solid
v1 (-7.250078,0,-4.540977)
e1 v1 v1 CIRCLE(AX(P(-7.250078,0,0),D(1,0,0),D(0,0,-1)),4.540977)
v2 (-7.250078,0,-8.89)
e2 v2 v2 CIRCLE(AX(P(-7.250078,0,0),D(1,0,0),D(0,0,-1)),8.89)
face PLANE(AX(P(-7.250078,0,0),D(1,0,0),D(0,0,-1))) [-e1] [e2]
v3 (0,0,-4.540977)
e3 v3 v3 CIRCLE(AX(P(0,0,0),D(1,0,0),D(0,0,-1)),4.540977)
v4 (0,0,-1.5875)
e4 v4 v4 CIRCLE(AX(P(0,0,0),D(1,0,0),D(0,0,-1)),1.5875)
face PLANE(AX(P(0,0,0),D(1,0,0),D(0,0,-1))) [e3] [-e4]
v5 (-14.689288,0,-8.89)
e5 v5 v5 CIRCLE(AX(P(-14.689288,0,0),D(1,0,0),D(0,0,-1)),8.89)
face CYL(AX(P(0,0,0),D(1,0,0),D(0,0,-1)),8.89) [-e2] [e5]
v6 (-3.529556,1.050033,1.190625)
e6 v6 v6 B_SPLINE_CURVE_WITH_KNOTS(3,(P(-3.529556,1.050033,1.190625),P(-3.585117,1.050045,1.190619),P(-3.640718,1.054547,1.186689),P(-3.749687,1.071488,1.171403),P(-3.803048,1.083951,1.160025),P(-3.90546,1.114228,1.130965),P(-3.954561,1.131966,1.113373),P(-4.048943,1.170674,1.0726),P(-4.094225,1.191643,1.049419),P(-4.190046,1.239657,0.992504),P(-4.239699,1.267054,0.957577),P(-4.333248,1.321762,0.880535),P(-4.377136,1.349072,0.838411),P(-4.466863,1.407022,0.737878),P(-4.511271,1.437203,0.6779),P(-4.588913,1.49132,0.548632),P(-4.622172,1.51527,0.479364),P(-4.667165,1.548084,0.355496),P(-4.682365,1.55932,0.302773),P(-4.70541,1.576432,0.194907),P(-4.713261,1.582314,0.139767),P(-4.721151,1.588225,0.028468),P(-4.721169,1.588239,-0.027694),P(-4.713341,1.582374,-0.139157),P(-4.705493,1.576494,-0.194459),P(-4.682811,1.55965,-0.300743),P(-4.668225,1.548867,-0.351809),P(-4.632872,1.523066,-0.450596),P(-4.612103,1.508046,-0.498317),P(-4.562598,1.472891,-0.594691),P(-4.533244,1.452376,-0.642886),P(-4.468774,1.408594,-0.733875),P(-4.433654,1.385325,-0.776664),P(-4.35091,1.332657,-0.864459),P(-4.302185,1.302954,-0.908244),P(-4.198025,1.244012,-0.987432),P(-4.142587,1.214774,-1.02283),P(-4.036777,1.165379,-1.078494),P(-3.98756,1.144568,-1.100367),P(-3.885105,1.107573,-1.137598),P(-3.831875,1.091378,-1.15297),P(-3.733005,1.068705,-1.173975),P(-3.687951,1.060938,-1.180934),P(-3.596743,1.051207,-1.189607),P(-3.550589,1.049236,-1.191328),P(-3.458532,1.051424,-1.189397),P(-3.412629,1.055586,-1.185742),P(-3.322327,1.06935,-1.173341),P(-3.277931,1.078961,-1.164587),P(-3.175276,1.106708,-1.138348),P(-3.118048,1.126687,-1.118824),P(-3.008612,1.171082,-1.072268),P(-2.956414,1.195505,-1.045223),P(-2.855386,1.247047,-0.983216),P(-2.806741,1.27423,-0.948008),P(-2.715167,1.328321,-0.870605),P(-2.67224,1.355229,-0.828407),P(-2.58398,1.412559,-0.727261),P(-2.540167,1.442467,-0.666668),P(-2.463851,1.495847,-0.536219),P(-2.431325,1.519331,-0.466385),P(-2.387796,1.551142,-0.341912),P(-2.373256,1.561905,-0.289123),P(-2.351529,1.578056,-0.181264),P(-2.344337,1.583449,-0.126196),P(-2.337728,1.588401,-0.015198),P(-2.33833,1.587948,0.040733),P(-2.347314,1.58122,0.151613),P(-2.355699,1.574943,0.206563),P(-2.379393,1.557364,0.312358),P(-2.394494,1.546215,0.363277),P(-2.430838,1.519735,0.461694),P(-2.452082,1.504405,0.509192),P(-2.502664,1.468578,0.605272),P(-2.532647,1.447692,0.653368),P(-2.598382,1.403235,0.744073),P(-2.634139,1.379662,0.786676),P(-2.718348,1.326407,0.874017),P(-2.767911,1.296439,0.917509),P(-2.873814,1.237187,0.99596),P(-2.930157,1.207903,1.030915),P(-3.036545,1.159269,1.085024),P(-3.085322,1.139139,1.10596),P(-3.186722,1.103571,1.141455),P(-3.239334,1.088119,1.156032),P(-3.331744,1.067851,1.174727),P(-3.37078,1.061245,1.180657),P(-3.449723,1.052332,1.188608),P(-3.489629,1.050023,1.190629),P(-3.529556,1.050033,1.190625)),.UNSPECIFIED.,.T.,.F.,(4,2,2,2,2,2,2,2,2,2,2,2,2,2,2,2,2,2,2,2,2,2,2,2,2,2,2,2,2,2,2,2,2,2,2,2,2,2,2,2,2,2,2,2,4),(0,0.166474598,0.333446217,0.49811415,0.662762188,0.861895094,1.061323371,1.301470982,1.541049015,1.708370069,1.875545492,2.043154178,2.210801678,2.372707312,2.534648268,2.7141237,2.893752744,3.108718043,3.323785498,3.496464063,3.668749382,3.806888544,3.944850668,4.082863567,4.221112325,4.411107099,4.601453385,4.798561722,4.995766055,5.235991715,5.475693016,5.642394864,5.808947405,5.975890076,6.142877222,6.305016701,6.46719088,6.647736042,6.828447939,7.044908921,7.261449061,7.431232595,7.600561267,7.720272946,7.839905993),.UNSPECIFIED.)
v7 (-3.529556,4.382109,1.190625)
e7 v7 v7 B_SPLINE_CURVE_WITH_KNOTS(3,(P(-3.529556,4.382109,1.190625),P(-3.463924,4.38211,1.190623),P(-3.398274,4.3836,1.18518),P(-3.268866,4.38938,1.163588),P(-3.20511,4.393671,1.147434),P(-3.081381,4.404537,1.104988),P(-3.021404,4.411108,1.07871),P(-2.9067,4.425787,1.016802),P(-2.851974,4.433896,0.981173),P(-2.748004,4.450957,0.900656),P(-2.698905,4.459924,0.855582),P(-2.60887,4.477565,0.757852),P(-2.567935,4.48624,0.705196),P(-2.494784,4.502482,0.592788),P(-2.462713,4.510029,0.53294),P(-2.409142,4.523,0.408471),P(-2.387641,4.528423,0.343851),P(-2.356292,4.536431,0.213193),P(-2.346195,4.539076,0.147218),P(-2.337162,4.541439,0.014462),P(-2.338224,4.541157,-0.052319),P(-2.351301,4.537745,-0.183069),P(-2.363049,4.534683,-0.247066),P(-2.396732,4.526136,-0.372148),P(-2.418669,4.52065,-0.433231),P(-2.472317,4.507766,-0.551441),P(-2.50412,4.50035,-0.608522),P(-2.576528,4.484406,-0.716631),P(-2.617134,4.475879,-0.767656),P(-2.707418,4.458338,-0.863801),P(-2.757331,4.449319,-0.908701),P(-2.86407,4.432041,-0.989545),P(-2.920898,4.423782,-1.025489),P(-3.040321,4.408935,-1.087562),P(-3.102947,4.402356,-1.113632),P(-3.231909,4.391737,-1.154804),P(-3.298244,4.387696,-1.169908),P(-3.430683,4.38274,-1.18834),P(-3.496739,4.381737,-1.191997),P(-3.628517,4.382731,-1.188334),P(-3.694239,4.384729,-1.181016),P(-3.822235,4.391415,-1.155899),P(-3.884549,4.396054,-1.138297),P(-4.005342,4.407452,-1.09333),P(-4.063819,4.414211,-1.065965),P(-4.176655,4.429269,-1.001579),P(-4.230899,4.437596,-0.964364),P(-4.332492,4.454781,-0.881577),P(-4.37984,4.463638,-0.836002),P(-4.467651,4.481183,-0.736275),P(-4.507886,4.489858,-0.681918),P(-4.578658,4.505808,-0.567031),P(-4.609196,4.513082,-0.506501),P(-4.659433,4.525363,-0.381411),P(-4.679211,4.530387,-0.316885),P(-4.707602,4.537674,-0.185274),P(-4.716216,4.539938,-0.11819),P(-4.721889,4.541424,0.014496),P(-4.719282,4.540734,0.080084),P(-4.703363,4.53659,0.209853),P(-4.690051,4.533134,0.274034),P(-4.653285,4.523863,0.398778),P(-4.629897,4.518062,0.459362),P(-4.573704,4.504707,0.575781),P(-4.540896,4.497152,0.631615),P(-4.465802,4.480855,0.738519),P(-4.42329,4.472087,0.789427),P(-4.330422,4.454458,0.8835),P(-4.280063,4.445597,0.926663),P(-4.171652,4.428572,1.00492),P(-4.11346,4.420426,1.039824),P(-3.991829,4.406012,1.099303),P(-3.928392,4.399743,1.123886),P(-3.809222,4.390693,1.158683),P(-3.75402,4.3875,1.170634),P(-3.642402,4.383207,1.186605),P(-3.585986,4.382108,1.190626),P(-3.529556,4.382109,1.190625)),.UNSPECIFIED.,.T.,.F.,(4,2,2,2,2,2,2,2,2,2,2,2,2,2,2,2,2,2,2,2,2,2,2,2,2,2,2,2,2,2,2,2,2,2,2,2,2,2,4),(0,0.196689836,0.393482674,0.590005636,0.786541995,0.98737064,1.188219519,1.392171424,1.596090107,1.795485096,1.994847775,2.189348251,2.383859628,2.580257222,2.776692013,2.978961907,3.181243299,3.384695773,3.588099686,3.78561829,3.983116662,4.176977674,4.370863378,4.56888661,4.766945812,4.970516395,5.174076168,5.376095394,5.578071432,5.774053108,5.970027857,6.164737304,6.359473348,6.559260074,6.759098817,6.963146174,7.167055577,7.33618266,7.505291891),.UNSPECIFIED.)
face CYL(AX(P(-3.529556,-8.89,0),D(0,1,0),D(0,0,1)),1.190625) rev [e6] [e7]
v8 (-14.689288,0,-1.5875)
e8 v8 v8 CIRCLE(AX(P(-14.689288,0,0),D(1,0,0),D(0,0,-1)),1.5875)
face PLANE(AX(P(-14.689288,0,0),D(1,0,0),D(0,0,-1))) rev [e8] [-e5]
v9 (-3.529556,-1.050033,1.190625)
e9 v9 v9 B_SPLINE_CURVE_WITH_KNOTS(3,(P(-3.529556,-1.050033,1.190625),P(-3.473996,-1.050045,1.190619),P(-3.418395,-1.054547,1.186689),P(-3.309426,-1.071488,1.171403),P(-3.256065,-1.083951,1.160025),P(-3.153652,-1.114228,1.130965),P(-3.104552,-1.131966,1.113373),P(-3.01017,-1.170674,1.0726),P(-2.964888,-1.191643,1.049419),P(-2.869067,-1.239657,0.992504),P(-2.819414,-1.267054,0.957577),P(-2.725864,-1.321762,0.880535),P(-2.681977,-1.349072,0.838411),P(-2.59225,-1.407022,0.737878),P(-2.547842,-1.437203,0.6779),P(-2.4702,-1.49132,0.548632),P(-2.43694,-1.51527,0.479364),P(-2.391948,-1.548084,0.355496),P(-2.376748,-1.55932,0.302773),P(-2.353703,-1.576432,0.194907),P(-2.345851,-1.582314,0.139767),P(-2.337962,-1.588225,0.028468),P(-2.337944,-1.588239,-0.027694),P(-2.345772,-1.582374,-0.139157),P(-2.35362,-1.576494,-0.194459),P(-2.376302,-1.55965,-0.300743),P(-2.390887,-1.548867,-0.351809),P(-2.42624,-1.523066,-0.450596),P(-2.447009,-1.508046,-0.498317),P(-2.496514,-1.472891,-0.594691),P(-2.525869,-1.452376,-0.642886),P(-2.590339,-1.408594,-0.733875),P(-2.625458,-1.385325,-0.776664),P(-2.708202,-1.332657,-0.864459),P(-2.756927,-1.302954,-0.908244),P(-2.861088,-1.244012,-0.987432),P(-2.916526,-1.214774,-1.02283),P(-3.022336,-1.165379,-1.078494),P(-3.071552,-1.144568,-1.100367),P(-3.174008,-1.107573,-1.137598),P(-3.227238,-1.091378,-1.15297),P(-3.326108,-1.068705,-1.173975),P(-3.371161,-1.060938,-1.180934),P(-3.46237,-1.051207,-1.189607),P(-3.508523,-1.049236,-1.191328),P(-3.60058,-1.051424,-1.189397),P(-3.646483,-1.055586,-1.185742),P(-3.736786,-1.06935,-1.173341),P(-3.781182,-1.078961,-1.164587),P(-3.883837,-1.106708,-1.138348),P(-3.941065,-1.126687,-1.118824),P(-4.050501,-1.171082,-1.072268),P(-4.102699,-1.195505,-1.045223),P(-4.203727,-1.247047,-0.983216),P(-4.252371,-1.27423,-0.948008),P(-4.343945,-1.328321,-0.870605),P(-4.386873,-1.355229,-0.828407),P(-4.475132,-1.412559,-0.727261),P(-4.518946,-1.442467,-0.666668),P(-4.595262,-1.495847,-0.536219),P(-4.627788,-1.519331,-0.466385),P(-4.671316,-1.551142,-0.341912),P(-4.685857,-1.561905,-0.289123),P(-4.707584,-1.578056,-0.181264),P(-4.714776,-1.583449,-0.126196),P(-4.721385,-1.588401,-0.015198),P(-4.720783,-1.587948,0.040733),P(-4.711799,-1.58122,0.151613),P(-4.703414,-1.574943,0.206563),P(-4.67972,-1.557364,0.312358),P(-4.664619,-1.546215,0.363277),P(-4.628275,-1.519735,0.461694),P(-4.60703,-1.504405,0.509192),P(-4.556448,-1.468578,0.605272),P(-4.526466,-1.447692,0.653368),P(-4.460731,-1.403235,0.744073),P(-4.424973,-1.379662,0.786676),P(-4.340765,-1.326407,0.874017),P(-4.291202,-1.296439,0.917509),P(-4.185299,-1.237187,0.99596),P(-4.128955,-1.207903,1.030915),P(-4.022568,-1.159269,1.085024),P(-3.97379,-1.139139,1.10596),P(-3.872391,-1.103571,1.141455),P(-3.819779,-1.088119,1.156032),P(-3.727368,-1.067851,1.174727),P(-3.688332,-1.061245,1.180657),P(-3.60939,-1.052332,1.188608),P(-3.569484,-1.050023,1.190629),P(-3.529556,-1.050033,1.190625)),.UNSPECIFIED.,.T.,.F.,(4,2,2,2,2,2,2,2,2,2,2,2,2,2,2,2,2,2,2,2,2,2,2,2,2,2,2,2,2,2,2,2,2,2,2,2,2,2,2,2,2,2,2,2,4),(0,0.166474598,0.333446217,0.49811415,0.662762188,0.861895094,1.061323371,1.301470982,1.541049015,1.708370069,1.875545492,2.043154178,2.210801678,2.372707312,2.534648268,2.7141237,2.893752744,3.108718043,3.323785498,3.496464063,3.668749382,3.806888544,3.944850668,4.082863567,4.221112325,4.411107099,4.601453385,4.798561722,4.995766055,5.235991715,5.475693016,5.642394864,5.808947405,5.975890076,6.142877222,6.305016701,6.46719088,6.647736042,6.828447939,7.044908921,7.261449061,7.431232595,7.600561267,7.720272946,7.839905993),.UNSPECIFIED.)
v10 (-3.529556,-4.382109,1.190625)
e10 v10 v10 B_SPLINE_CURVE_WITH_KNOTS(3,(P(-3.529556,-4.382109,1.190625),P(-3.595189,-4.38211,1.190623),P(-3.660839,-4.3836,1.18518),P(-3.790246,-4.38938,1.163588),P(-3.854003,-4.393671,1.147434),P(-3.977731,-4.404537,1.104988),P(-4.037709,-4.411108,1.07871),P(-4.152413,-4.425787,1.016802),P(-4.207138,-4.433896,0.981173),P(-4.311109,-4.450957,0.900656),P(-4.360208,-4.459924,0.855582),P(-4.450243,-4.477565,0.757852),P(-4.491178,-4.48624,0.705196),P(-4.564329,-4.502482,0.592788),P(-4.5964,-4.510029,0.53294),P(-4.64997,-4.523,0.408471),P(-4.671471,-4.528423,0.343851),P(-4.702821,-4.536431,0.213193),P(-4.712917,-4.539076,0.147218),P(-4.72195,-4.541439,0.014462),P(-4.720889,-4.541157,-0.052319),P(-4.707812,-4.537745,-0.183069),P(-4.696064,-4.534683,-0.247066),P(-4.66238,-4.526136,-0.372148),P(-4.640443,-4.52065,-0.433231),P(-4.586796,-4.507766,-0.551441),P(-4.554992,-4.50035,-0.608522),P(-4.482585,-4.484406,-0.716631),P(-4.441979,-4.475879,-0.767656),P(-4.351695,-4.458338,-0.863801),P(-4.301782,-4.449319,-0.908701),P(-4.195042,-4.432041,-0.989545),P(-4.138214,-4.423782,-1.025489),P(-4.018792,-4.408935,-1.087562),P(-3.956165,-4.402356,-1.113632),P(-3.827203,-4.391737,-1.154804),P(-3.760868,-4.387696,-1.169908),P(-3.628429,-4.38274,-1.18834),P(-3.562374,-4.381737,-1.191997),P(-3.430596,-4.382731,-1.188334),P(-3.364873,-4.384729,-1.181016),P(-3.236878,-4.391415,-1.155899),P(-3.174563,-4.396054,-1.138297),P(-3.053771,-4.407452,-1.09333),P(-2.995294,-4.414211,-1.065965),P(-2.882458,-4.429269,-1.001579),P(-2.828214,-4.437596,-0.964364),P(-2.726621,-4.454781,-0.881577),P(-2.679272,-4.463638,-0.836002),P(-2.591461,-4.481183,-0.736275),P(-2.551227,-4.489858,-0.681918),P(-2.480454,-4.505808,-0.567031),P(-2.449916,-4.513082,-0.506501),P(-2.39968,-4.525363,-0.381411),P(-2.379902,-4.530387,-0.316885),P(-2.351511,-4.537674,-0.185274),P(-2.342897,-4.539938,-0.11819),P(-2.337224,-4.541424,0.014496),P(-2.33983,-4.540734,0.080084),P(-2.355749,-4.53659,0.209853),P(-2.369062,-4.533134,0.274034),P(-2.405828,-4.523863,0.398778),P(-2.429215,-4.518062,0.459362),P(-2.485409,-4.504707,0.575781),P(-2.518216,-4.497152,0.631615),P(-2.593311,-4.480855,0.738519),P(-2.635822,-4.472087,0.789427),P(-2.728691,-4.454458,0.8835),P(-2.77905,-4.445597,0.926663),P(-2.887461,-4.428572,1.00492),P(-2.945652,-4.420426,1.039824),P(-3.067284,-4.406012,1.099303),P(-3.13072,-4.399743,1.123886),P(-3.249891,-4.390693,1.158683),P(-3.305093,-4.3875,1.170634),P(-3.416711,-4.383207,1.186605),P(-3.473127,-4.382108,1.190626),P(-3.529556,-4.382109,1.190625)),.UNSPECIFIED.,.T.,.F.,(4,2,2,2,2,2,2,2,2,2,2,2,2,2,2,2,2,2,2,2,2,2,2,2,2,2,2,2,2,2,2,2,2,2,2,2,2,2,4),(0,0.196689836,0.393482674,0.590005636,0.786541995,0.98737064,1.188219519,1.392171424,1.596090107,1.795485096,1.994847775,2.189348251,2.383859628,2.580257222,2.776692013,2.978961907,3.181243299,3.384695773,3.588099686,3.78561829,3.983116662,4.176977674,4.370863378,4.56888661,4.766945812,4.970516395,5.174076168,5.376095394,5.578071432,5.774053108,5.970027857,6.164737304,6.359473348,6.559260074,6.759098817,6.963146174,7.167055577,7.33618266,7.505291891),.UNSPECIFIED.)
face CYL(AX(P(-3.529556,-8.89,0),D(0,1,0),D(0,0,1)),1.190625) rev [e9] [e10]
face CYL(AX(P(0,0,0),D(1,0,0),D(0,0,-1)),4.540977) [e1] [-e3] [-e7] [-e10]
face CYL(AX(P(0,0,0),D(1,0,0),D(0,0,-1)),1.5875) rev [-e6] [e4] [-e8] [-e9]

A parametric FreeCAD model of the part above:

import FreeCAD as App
import Part
import Sketcher
from FreeCAD import Vector
Q = App.Units.Quantity

doc = App.newDocument("Part")
params = doc.addObject("Spreadsheet::Sheet", "Params")
for row, (alias, value) in enumerate([
    ("revolution_angle", "360 deg"),
    ("sketch2_diameter", "0.09375 in"),
], start=1):
    params.set(f"A{row}", alias)
    params.set(f"B{row}", "=" + value)
    params.setAlias(f"B{row}", alias)

body = doc.addObject("PartDesign::Body", "Body")

# Sketch on XY plane
sketch1 = doc.addObject("Sketcher::SketchObject", "Sketch")
body.addObject(sketch1)
sketch1.AttachmentSupport = (doc.XY_Plane, [""])
sketch1.MapMode = "FlatFace"
sketch1.addGeometry([
    Part.LineSegment(Vector(-7.3, 1.6, 0), Vector(0, 1.6, 0)),  # 0
    Part.LineSegment(Vector(0, 1.6, 0), Vector(0, 4.5, 0)),  # 1
    Part.LineSegment(Vector(0, 4.5, 0), Vector(-7.3, 4.5, 0)),  # 2
    Part.LineSegment(Vector(-7.3, 4.5, 0), Vector(-7.3, 8.9, 0)),  # 3
    Part.LineSegment(Vector(-7.3, 8.9, 0), Vector(-14.7, 8.9, 0)),  # 4
    Part.LineSegment(Vector(-14.7, 8.9, 0), Vector(-14.7, 1.6, 0)),  # 5
    Part.LineSegment(Vector(-14.7, 1.6, 0), Vector(-7.3, 1.6, 0)),  # 6
], False)
sketch1.addConstraint([
    Sketcher.Constraint("Coincident", 0, 2, 1, 1),
    Sketcher.Constraint("Coincident", 1, 2, 2, 1),
    Sketcher.Constraint("Coincident", 2, 2, 3, 1),
    Sketcher.Constraint("Coincident", 3, 2, 4, 1),
    Sketcher.Constraint("Coincident", 4, 2, 5, 1),
    Sketcher.Constraint("Coincident", 5, 2, 6, 1),
    Sketcher.Constraint("Coincident", 6, 2, 0, 1),
    Sketcher.Constraint("Horizontal", 0),
    Sketcher.Constraint("Vertical", 1),
    Sketcher.Constraint("Horizontal", 2),
    Sketcher.Constraint("Vertical", 3),
    Sketcher.Constraint("Horizontal", 4),
    Sketcher.Constraint("Vertical", 5),
    Sketcher.Constraint("Horizontal", 6),
    Sketcher.Constraint("PointOnObject", 0, 2, -2),
    Sketcher.Constraint("Vertical", 3, 2, 6, 2),
    Sketcher.Constraint("DistanceY", -1, 1, 3, 2, Q("0.35 in")),
    Sketcher.Constraint("DistanceY", 5, 2, 5, 1, Q("0.2875 in")),
    Sketcher.Constraint("DistanceX", 4, 2, 4, 1, 7.43921),
    Sketcher.Constraint("DistanceX", 0, 1, 0, 2, 7.250078),
    Sketcher.Constraint("DistanceY", 1, 1, 1, 2, 2.953477),
])
revolution = doc.addObject("PartDesign::Revolution", "Revolution")
body.addObject(revolution)
revolution.Profile = sketch1
revolution.ReferenceAxis = (sketch1, ["H_Axis"])
revolution.setExpression("Angle", "Params.revolution_angle")

# Sketch on XZ plane
sketch2 = doc.addObject("Sketcher::SketchObject", "Sketch001")
body.addObject(sketch2)
sketch2.AttachmentSupport = (doc.XZ_Plane, [""])
sketch2.MapMode = "FlatFace"
sketch2.addGeometry(Part.Circle(Vector(-3.5, 0, 0), Vector(0, 0, 1), 1.2), False)
sketch2.addConstraint([
    Sketcher.Constraint("PointOnObject", 0, 3, -1),
    Sketcher.Constraint("Diameter", 0, Q("0.09375 in")),
    Sketcher.Constraint("DistanceX", 0, 3, -1, 1, 3.529556),
])
sketch2.setExpression("Constraints[1]", "Params.sketch2_diameter")
pocket1 = doc.addObject("PartDesign::Pocket", "Pocket")
body.addObject(pocket1)
pocket1.Profile = sketch2
pocket1.Type = "ThroughAll"
pocket1.Midplane = True

doc.recompute()
